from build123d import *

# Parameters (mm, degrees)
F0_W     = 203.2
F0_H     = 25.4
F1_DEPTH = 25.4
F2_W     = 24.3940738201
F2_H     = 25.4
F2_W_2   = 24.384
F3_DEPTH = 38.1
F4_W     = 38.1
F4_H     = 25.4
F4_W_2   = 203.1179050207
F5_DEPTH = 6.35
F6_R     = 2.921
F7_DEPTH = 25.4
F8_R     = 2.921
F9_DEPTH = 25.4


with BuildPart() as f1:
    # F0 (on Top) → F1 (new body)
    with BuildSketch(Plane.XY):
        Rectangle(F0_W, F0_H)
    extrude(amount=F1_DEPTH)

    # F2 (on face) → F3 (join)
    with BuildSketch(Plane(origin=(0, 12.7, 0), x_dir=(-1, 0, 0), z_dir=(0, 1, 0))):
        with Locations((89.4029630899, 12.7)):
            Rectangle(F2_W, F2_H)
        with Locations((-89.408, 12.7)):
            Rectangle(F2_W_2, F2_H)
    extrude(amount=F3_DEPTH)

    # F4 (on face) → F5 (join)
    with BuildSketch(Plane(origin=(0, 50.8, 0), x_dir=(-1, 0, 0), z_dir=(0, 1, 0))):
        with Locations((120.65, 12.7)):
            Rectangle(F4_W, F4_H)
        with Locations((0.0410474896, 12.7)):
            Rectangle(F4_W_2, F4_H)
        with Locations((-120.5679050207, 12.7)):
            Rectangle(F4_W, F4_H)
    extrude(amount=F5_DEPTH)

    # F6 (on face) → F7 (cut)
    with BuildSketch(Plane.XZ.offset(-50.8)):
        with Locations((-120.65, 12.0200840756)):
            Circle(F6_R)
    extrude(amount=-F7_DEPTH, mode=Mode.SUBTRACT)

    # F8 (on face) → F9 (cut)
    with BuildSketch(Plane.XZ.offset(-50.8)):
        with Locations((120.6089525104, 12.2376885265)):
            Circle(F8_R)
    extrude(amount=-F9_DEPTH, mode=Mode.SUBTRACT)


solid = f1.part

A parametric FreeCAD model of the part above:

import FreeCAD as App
import Part
import Sketcher

V = App.Vector
Q = App.Units.Quantity

doc = App.newDocument("Part")
params = doc.addObject("Spreadsheet::Sheet", "Params")
for row, (alias, value) in enumerate([
    ("sketch1_width", "8 in"),
    ("sketch1_height", "1 in"),
    ("pad1_length", "1 in"),
    ("sketch2_height", "1 in"),
    ("sketch2_width", "0.96 in"),
    ("pad2_length", "1.5 in"),
    ("sketch3_height", "1 in"),
    ("pad3_length", "0.25 in"),
    ("sketch4_diameter", "0.23 in"),
    ("pocket1_length", "1 in"),
    ("sketch5_diameter", "0.23 in"),
    ("pocket2_length", "1 in"),
], start=1):
    params.set(f"A{row}", alias)
    params.set(f"B{row}", "=" + value)
    params.setAlias(f"B{row}", alias)

body = doc.addObject("PartDesign::Body", "Body")

sketch1 = body.newObject("Sketcher::SketchObject", "Sketch")
sketch1.AttachmentSupport = (doc.getObject("XY_Plane"), [""])
sketch1.MapMode = "FlatFace"
sketch1.addGeometry([
    Part.LineSegment(V(-102, 13, 0), V(-102, -13, 0)),
    Part.LineSegment(V(-102, -13, 0), V(102, -13, 0)),
    Part.LineSegment(V(102, -13, 0), V(102, 13, 0)),
    Part.LineSegment(V(102, 13, 0), V(-102, 13, 0)),
], False)
sketch1.addConstraint([
    Sketcher.Constraint("Coincident", 0, 2, 1, 1),
    Sketcher.Constraint("Coincident", 1, 2, 2, 1),
    Sketcher.Constraint("Coincident", 2, 2, 3, 1),
    Sketcher.Constraint("Coincident", 3, 2, 0, 1),
    Sketcher.Constraint("Vertical", 0),
    Sketcher.Constraint("Horizontal", 1),
    Sketcher.Constraint("Vertical", 2),
    Sketcher.Constraint("Horizontal", 3),
    Sketcher.Constraint("Symmetric", 0, 2, 2, 2, -1, 1),
    Sketcher.Constraint("DistanceX", 1, 1, 1, 2, Q("8 in")),
    Sketcher.Constraint("DistanceY", 0, 2, 0, 1, Q("1 in")),
])
sketch1.setExpression("Constraints[9]", "Params.sketch1_width")
sketch1.setExpression("Constraints[10]", "Params.sketch1_height")
pad1 = body.newObject("PartDesign::Pad", "Pad")
pad1.Profile = sketch1
pad1.setExpression("Length", "Params.pad1_length")

sketch2 = body.newObject("Sketcher::SketchObject", "Sketch001")
sketch2.AttachmentSupport = (doc.getObject("XZ_Plane"), [""])
sketch2.MapMode = "FlatFace"
sketch2.AttachmentOffset = App.Placement(V(0, 0, -0.5 * 25.4), App.Rotation())
sketch2.addGeometry([
    Part.LineSegment(V(-77, 25, 0), V(-77, 0, 0)),
    Part.LineSegment(V(-77, 0, 0), V(-102, 0, 0)),
    Part.LineSegment(V(-102, 0, 0), V(-102, 25, 0)),
    Part.LineSegment(V(-102, 25, 0), V(-77, 25, 0)),
    Part.LineSegment(V(102, 25, 0), V(102, 0, 0)),
    Part.LineSegment(V(102, 0, 0), V(77, 0, 0)),
    Part.LineSegment(V(77, 0, 0), V(77, 25, 0)),
    Part.LineSegment(V(77, 25, 0), V(102, 25, 0)),
], False)
sketch2.addConstraint([
    Sketcher.Constraint("Coincident", 0, 2, 1, 1),
    Sketcher.Constraint("Coincident", 1, 2, 2, 1),
    Sketcher.Constraint("Coincident", 2, 2, 3, 1),
    Sketcher.Constraint("Coincident", 3, 2, 0, 1),
    Sketcher.Constraint("Coincident", 4, 2, 5, 1),
    Sketcher.Constraint("Coincident", 5, 2, 6, 1),
    Sketcher.Constraint("Coincident", 6, 2, 7, 1),
    Sketcher.Constraint("Coincident", 7, 2, 4, 1),
    Sketcher.Constraint("Vertical", 0),
    Sketcher.Constraint("Horizontal", 1),
    Sketcher.Constraint("Vertical", 2),
    Sketcher.Constraint("Horizontal", 3),
    Sketcher.Constraint("Vertical", 4),
    Sketcher.Constraint("Horizontal", 5),
    Sketcher.Constraint("Vertical", 6),
    Sketcher.Constraint("Horizontal", 7),
    Sketcher.Constraint("Symmetric", 1, 2, 4, 2, -1, 1),
    Sketcher.Constraint("PointOnObject", 0, 2, -1),
    Sketcher.Constraint("Horizontal", 3, 2, 6, 2),
    Sketcher.Constraint("DistanceY", 0, 2, 0, 1, Q("1 in")),
    Sketcher.Constraint("DistanceX", 1, 2, -1, 1, Q("4 in")),
    Sketcher.Constraint("DistanceX", 5, 2, 5, 1, Q("0.96 in")),
    Sketcher.Constraint("DistanceX", 1, 2, 1, 1, 24.394074),
])
sketch2.setExpression("Constraints[19]", "Params.sketch2_height")
sketch2.setExpression("Constraints[21]", "Params.sketch2_width")
pad2 = body.newObject("PartDesign::Pad", "Pad001")
pad2.Profile = sketch2
pad2.setExpression("Length", "Params.pad2_length")
pad2.Reversed = True

sketch3 = body.newObject("Sketcher::SketchObject", "Sketch002")
sketch3.AttachmentSupport = (doc.getObject("XZ_Plane"), [""])
sketch3.MapMode = "FlatFace"
sketch3.AttachmentOffset = App.Placement(V(0, 0, -2 * 25.4), App.Rotation())
sketch3.addGeometry([
    Part.LineSegment(V(-140, 0, 0), V(-140, 25, 0)),
    Part.LineSegment(V(-140, 25, 0), V(140, 25, 0)),
    Part.LineSegment(V(140, 25, 0), V(140, 0, 0)),
    Part.LineSegment(V(140, 0, 0), V(-140, 0, 0)),
], False)
sketch3.addConstraint([
    Sketcher.Constraint("Coincident", 0, 2, 1, 1),
    Sketcher.Constraint("Coincident", 1, 2, 2, 1),
    Sketcher.Constraint("Coincident", 2, 2, 3, 1),
    Sketcher.Constraint("Coincident", 3, 2, 0, 1),
    Sketcher.Constraint("Vertical", 0),
    Sketcher.Constraint("Horizontal", 1),
    Sketcher.Constraint("Vertical", 2),
    Sketcher.Constraint("Horizontal", 3),
    Sketcher.Constraint("PointOnObject", 2, 2, -1),
    Sketcher.Constraint("DistanceY", 0, 1, 0, 2, Q("1 in")),
    Sketcher.Constraint("DistanceX", 0, 2, -1, 1, Q("5.5 in")),
    Sketcher.Constraint("DistanceX", 1, 1, 1, 2, 279.317905),
])
sketch3.setExpression("Constraints[9]", "Params.sketch3_height")
pad3 = body.newObject("PartDesign::Pad", "Pad002")
pad3.Profile = sketch3
pad3.setExpression("Length", "Params.pad3_length")
pad3.Reversed = True

sketch4 = body.newObject("Sketcher::SketchObject", "Sketch003")
sketch4.AttachmentSupport = (doc.getObject("XZ_Plane"), [""])
sketch4.MapMode = "FlatFace"
sketch4.AttachmentOffset = App.Placement(V(0, 0, -2 * 25.4), App.Rotation())
sketch4.addGeometry(Part.Circle(V(-120.7, 12, 0), V(0, 0, 1), 2.9), False)
sketch4.addConstraint([
    Sketcher.Constraint("Diameter", 0, Q("0.23 in")),
    Sketcher.Constraint("DistanceX", 0, 3, -1, 1, Q("4.75 in")),
    Sketcher.Constraint("DistanceY", -1, 1, 0, 3, 12.020084),
])
sketch4.setExpression("Constraints[0]", "Params.sketch4_diameter")
pocket1 = body.newObject("PartDesign::Pocket", "Pocket")
pocket1.Profile = sketch4
pocket1.setExpression("Length", "Params.pocket1_length")

sketch5 = body.newObject("Sketcher::SketchObject", "Sketch004")
sketch5.AttachmentSupport = (doc.getObject("XZ_Plane"), [""])
sketch5.MapMode = "FlatFace"
sketch5.AttachmentOffset = App.Placement(V(0, 0, -2 * 25.4), App.Rotation())
sketch5.addGeometry(Part.Circle(V(120.6, 12.2, 0), V(0, 0, 1), 2.9), False)
sketch5.addConstraint([
    Sketcher.Constraint("Diameter", 0, Q("0.23 in")),
    Sketcher.Constraint("DistanceY", -1, 1, 0, 3, 12.237689),
    Sketcher.Constraint("DistanceX", -1, 1, 0, 3, 120.608953),
])
sketch5.setExpression("Constraints[0]", "Params.sketch5_diameter")
pocket2 = body.newObject("PartDesign::Pocket", "Pocket001")
pocket2.Profile = sketch5
pocket2.setExpression("Length", "Params.pocket2_length")

doc.recompute()
